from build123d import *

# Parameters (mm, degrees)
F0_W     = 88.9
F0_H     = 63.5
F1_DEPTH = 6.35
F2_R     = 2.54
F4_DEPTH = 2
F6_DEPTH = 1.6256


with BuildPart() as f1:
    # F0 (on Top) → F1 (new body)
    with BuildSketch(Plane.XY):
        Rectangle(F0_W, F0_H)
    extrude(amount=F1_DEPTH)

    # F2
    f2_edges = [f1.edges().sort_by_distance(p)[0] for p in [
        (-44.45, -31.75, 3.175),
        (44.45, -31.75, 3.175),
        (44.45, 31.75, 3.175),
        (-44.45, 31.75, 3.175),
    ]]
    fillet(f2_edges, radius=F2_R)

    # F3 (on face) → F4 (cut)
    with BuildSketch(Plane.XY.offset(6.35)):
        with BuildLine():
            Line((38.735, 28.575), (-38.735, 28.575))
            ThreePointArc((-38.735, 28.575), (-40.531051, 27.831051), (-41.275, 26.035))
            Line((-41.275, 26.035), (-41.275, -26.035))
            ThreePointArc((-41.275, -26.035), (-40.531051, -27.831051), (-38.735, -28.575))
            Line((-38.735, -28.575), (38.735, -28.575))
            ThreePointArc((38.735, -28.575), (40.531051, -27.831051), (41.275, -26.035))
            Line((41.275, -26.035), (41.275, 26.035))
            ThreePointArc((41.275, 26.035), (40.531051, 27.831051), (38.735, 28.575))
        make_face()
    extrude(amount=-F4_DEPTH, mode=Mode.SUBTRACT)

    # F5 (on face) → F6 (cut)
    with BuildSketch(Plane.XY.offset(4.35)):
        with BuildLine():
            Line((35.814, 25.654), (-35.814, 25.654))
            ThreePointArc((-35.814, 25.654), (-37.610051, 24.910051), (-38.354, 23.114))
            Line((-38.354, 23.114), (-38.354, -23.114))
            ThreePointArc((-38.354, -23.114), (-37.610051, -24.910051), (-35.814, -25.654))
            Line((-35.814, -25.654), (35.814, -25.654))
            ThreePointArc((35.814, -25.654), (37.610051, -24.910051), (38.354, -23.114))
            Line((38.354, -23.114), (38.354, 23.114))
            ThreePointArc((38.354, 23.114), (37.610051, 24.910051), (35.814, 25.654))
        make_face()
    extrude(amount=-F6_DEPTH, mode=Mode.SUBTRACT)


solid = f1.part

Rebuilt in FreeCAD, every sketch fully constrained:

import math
import FreeCAD as App
import Part
import Sketcher

V = App.Vector
Q = App.Units.Quantity


def edges_at(feature, points):
    """Names of the edges that pass closest to the given points."""
    edges = feature.Shape.Edges
    near = lambda p: min(range(len(edges)), key=lambda i: edges[i].distToShape(Part.Vertex(*p))[0])
    return sorted({f"Edge{near(p) + 1}" for p in points})


def add_polygon(sketch, points):
    """Adds a closed chain of lines whose ends are joined by coincident constraints."""
    first, n = sketch.GeometryCount, len(points)
    for a, b in zip(points, points[1:] + points[:1]):
        sketch.addGeometry(Part.LineSegment(App.Vector(*a, 0), App.Vector(*b, 0)), False)
    for i in range(n):
        sketch.addConstraint(Sketcher.Constraint("Coincident", first + i, 2, first + (i + 1) % n, 1))

doc = App.newDocument("Part")
body = doc.addObject("PartDesign::Body", "Body")

# Sketch on XY plane
sketch1 = doc.addObject("Sketcher::SketchObject", "Sketch")
body.addObject(sketch1)
sketch1.AttachmentSupport = (doc.XY_Plane, [""])
sketch1.MapMode = "FlatFace"
add_polygon(sketch1, [(-44, 32), (-44, -32), (44, -32), (44, 32)])  # lines 0-3
sketch1.addConstraint([
    Sketcher.Constraint("Vertical", 0),
    Sketcher.Constraint("Horizontal", 1),
    Sketcher.Constraint("Vertical", 2),
    Sketcher.Constraint("Horizontal", 3),
    Sketcher.Constraint("Symmetric", 0, 2, 2, 2, -1, 1),
    Sketcher.Constraint("DistanceX", 1, 1, 1, 2, Q("3.5 in")),
    Sketcher.Constraint("DistanceY", 0, 2, 0, 1, Q("2.5 in")),
])
pad1 = doc.addObject("PartDesign::Pad", "Pad")
body.addObject(pad1)
pad1.Profile = sketch1
pad1.Length = Q("0.25 in")
doc.recompute()

fillet = doc.addObject("PartDesign::Fillet", "Fillet")
body.addObject(fillet)
fillet.Base = (pad1, edges_at(pad1, [
    (-44.45, -31.75, 3.175),
    (44.45, -31.75, 3.175),
    (44.45, 31.75, 3.175),
    (-44.45, 31.75, 3.175),
]))
fillet.Radius = Q("0.1 in")

# Sketch on XY plane
sketch2 = doc.addObject("Sketcher::SketchObject", "Sketch001")
body.addObject(sketch2)
sketch2.AttachmentSupport = (doc.XY_Plane, [""])
sketch2.MapMode = "FlatFace"
sketch2.AttachmentOffset = App.Placement(V(0, 0, 0.25 * 25.4), App.Rotation())
sketch2.addGeometry([
    Part.LineSegment(V(38.7, 28.6, 0), V(-38.7, 28.6, 0)),  # 0
    Part.ArcOfCircle(Part.Circle(V(-38.7, 26, 0), V(0, 0, 1), 2.5), math.radians(90), math.radians(180)),  # 1
    Part.LineSegment(V(-41.3, 26, 0), V(-41.3, -26, 0)),  # 2
    Part.ArcOfCircle(Part.Circle(V(-38.7, -26, 0), V(0, 0, 1), 2.5), math.radians(-180), math.radians(-90)),  # 3
    Part.LineSegment(V(-38.7, -28.6, 0), V(38.7, -28.6, 0)),  # 4
    Part.ArcOfCircle(Part.Circle(V(38.7, -26, 0), V(0, 0, 1), 2.5), math.radians(-90), math.radians(0)),  # 5
    Part.LineSegment(V(41.3, -26, 0), V(41.3, 26, 0)),  # 6
    Part.ArcOfCircle(Part.Circle(V(38.7, 26, 0), V(0, 0, 1), 2.5), math.radians(0), math.radians(90)),  # 7
], False)
sketch2.addConstraint([
    Sketcher.Constraint("Tangent", 0, 2, 1, 1),
    Sketcher.Constraint("Tangent", 1, 2, 2, 1),
    Sketcher.Constraint("Tangent", 2, 2, 3, 1),
    Sketcher.Constraint("Tangent", 3, 2, 4, 1),
    Sketcher.Constraint("Tangent", 4, 2, 5, 1),
    Sketcher.Constraint("Tangent", 5, 2, 6, 1),
    Sketcher.Constraint("Tangent", 6, 2, 7, 1),
    Sketcher.Constraint("Tangent", 7, 2, 0, 1),
    Sketcher.Constraint("Horizontal", 0),
    Sketcher.Constraint("Vertical", 2),
    Sketcher.Constraint("Horizontal", 4),
    Sketcher.Constraint("Vertical", 6),
    Sketcher.Constraint("Equal", 1, 3),
    Sketcher.Constraint("Equal", 3, 5),
    Sketcher.Constraint("Equal", 5, 7),
    Sketcher.Constraint("Symmetric", 1, 3, 5, 3, -1, 1),
    Sketcher.Constraint("Radius", 1, Q("0.1 in")),
    Sketcher.Constraint("DistanceX", 0, 2, 0, 1, Q("3.05 in")),
    Sketcher.Constraint("DistanceY", 2, 2, 2, 1, Q("2.05 in")),
])
pocket1 = doc.addObject("PartDesign::Pocket", "Pocket")
body.addObject(pocket1)
pocket1.Profile = sketch2
pocket1.Length = 2

# Sketch on XY plane
sketch3 = doc.addObject("Sketcher::SketchObject", "Sketch002")
body.addObject(sketch3)
sketch3.AttachmentSupport = (doc.XY_Plane, [""])
sketch3.MapMode = "FlatFace"
sketch3.AttachmentOffset = App.Placement(V(0, 0, 4.35), App.Rotation())
sketch3.addGeometry([
    Part.LineSegment(V(35.8, 25.7, 0), V(-35.8, 25.7, 0)),  # 0
    Part.ArcOfCircle(Part.Circle(V(-35.8, 23.1, 0), V(0, 0, 1), 2.5), math.radians(90), math.radians(180)),  # 1
    Part.LineSegment(V(-38.4, 23.1, 0), V(-38.4, -23.1, 0)),  # 2
    Part.ArcOfCircle(Part.Circle(V(-35.8, -23.1, 0), V(0, 0, 1), 2.5), math.radians(-180), math.radians(-90)),  # 3
    Part.LineSegment(V(-35.8, -25.7, 0), V(35.8, -25.7, 0)),  # 4
    Part.ArcOfCircle(Part.Circle(V(35.8, -23.1, 0), V(0, 0, 1), 2.5), math.radians(-90), math.radians(0)),  # 5
    Part.LineSegment(V(38.4, -23.1, 0), V(38.4, 23.1, 0)),  # 6
    Part.ArcOfCircle(Part.Circle(V(35.8, 23.1, 0), V(0, 0, 1), 2.5), math.radians(0), math.radians(90)),  # 7
], False)
sketch3.addConstraint([
    Sketcher.Constraint("Tangent", 0, 2, 1, 1),
    Sketcher.Constraint("Tangent", 1, 2, 2, 1),
    Sketcher.Constraint("Tangent", 2, 2, 3, 1),
    Sketcher.Constraint("Tangent", 3, 2, 4, 1),
    Sketcher.Constraint("Tangent", 4, 2, 5, 1),
    Sketcher.Constraint("Tangent", 5, 2, 6, 1),
    Sketcher.Constraint("Tangent", 6, 2, 7, 1),
    Sketcher.Constraint("Tangent", 7, 2, 0, 1),
    Sketcher.Constraint("Horizontal", 0),
    Sketcher.Constraint("Vertical", 2),
    Sketcher.Constraint("Horizontal", 4),
    Sketcher.Constraint("Vertical", 6),
    Sketcher.Constraint("Equal", 1, 3),
    Sketcher.Constraint("Equal", 3, 5),
    Sketcher.Constraint("Equal", 5, 7),
    Sketcher.Constraint("Symmetric", 1, 3, 5, 3, -1, 1),
    Sketcher.Constraint("Radius", 1, Q("0.1 in")),
    Sketcher.Constraint("DistanceX", 0, 2, 0, 1, Q("2.82 in")),
    Sketcher.Constraint("DistanceY", 2, 2, 2, 1, Q("1.82 in")),
])
pocket2 = doc.addObject("PartDesign::Pocket", "Pocket001")
body.addObject(pocket2)
pocket2.Profile = sketch3
pocket2.Length = Q("0.064 in")

doc.recompute()
